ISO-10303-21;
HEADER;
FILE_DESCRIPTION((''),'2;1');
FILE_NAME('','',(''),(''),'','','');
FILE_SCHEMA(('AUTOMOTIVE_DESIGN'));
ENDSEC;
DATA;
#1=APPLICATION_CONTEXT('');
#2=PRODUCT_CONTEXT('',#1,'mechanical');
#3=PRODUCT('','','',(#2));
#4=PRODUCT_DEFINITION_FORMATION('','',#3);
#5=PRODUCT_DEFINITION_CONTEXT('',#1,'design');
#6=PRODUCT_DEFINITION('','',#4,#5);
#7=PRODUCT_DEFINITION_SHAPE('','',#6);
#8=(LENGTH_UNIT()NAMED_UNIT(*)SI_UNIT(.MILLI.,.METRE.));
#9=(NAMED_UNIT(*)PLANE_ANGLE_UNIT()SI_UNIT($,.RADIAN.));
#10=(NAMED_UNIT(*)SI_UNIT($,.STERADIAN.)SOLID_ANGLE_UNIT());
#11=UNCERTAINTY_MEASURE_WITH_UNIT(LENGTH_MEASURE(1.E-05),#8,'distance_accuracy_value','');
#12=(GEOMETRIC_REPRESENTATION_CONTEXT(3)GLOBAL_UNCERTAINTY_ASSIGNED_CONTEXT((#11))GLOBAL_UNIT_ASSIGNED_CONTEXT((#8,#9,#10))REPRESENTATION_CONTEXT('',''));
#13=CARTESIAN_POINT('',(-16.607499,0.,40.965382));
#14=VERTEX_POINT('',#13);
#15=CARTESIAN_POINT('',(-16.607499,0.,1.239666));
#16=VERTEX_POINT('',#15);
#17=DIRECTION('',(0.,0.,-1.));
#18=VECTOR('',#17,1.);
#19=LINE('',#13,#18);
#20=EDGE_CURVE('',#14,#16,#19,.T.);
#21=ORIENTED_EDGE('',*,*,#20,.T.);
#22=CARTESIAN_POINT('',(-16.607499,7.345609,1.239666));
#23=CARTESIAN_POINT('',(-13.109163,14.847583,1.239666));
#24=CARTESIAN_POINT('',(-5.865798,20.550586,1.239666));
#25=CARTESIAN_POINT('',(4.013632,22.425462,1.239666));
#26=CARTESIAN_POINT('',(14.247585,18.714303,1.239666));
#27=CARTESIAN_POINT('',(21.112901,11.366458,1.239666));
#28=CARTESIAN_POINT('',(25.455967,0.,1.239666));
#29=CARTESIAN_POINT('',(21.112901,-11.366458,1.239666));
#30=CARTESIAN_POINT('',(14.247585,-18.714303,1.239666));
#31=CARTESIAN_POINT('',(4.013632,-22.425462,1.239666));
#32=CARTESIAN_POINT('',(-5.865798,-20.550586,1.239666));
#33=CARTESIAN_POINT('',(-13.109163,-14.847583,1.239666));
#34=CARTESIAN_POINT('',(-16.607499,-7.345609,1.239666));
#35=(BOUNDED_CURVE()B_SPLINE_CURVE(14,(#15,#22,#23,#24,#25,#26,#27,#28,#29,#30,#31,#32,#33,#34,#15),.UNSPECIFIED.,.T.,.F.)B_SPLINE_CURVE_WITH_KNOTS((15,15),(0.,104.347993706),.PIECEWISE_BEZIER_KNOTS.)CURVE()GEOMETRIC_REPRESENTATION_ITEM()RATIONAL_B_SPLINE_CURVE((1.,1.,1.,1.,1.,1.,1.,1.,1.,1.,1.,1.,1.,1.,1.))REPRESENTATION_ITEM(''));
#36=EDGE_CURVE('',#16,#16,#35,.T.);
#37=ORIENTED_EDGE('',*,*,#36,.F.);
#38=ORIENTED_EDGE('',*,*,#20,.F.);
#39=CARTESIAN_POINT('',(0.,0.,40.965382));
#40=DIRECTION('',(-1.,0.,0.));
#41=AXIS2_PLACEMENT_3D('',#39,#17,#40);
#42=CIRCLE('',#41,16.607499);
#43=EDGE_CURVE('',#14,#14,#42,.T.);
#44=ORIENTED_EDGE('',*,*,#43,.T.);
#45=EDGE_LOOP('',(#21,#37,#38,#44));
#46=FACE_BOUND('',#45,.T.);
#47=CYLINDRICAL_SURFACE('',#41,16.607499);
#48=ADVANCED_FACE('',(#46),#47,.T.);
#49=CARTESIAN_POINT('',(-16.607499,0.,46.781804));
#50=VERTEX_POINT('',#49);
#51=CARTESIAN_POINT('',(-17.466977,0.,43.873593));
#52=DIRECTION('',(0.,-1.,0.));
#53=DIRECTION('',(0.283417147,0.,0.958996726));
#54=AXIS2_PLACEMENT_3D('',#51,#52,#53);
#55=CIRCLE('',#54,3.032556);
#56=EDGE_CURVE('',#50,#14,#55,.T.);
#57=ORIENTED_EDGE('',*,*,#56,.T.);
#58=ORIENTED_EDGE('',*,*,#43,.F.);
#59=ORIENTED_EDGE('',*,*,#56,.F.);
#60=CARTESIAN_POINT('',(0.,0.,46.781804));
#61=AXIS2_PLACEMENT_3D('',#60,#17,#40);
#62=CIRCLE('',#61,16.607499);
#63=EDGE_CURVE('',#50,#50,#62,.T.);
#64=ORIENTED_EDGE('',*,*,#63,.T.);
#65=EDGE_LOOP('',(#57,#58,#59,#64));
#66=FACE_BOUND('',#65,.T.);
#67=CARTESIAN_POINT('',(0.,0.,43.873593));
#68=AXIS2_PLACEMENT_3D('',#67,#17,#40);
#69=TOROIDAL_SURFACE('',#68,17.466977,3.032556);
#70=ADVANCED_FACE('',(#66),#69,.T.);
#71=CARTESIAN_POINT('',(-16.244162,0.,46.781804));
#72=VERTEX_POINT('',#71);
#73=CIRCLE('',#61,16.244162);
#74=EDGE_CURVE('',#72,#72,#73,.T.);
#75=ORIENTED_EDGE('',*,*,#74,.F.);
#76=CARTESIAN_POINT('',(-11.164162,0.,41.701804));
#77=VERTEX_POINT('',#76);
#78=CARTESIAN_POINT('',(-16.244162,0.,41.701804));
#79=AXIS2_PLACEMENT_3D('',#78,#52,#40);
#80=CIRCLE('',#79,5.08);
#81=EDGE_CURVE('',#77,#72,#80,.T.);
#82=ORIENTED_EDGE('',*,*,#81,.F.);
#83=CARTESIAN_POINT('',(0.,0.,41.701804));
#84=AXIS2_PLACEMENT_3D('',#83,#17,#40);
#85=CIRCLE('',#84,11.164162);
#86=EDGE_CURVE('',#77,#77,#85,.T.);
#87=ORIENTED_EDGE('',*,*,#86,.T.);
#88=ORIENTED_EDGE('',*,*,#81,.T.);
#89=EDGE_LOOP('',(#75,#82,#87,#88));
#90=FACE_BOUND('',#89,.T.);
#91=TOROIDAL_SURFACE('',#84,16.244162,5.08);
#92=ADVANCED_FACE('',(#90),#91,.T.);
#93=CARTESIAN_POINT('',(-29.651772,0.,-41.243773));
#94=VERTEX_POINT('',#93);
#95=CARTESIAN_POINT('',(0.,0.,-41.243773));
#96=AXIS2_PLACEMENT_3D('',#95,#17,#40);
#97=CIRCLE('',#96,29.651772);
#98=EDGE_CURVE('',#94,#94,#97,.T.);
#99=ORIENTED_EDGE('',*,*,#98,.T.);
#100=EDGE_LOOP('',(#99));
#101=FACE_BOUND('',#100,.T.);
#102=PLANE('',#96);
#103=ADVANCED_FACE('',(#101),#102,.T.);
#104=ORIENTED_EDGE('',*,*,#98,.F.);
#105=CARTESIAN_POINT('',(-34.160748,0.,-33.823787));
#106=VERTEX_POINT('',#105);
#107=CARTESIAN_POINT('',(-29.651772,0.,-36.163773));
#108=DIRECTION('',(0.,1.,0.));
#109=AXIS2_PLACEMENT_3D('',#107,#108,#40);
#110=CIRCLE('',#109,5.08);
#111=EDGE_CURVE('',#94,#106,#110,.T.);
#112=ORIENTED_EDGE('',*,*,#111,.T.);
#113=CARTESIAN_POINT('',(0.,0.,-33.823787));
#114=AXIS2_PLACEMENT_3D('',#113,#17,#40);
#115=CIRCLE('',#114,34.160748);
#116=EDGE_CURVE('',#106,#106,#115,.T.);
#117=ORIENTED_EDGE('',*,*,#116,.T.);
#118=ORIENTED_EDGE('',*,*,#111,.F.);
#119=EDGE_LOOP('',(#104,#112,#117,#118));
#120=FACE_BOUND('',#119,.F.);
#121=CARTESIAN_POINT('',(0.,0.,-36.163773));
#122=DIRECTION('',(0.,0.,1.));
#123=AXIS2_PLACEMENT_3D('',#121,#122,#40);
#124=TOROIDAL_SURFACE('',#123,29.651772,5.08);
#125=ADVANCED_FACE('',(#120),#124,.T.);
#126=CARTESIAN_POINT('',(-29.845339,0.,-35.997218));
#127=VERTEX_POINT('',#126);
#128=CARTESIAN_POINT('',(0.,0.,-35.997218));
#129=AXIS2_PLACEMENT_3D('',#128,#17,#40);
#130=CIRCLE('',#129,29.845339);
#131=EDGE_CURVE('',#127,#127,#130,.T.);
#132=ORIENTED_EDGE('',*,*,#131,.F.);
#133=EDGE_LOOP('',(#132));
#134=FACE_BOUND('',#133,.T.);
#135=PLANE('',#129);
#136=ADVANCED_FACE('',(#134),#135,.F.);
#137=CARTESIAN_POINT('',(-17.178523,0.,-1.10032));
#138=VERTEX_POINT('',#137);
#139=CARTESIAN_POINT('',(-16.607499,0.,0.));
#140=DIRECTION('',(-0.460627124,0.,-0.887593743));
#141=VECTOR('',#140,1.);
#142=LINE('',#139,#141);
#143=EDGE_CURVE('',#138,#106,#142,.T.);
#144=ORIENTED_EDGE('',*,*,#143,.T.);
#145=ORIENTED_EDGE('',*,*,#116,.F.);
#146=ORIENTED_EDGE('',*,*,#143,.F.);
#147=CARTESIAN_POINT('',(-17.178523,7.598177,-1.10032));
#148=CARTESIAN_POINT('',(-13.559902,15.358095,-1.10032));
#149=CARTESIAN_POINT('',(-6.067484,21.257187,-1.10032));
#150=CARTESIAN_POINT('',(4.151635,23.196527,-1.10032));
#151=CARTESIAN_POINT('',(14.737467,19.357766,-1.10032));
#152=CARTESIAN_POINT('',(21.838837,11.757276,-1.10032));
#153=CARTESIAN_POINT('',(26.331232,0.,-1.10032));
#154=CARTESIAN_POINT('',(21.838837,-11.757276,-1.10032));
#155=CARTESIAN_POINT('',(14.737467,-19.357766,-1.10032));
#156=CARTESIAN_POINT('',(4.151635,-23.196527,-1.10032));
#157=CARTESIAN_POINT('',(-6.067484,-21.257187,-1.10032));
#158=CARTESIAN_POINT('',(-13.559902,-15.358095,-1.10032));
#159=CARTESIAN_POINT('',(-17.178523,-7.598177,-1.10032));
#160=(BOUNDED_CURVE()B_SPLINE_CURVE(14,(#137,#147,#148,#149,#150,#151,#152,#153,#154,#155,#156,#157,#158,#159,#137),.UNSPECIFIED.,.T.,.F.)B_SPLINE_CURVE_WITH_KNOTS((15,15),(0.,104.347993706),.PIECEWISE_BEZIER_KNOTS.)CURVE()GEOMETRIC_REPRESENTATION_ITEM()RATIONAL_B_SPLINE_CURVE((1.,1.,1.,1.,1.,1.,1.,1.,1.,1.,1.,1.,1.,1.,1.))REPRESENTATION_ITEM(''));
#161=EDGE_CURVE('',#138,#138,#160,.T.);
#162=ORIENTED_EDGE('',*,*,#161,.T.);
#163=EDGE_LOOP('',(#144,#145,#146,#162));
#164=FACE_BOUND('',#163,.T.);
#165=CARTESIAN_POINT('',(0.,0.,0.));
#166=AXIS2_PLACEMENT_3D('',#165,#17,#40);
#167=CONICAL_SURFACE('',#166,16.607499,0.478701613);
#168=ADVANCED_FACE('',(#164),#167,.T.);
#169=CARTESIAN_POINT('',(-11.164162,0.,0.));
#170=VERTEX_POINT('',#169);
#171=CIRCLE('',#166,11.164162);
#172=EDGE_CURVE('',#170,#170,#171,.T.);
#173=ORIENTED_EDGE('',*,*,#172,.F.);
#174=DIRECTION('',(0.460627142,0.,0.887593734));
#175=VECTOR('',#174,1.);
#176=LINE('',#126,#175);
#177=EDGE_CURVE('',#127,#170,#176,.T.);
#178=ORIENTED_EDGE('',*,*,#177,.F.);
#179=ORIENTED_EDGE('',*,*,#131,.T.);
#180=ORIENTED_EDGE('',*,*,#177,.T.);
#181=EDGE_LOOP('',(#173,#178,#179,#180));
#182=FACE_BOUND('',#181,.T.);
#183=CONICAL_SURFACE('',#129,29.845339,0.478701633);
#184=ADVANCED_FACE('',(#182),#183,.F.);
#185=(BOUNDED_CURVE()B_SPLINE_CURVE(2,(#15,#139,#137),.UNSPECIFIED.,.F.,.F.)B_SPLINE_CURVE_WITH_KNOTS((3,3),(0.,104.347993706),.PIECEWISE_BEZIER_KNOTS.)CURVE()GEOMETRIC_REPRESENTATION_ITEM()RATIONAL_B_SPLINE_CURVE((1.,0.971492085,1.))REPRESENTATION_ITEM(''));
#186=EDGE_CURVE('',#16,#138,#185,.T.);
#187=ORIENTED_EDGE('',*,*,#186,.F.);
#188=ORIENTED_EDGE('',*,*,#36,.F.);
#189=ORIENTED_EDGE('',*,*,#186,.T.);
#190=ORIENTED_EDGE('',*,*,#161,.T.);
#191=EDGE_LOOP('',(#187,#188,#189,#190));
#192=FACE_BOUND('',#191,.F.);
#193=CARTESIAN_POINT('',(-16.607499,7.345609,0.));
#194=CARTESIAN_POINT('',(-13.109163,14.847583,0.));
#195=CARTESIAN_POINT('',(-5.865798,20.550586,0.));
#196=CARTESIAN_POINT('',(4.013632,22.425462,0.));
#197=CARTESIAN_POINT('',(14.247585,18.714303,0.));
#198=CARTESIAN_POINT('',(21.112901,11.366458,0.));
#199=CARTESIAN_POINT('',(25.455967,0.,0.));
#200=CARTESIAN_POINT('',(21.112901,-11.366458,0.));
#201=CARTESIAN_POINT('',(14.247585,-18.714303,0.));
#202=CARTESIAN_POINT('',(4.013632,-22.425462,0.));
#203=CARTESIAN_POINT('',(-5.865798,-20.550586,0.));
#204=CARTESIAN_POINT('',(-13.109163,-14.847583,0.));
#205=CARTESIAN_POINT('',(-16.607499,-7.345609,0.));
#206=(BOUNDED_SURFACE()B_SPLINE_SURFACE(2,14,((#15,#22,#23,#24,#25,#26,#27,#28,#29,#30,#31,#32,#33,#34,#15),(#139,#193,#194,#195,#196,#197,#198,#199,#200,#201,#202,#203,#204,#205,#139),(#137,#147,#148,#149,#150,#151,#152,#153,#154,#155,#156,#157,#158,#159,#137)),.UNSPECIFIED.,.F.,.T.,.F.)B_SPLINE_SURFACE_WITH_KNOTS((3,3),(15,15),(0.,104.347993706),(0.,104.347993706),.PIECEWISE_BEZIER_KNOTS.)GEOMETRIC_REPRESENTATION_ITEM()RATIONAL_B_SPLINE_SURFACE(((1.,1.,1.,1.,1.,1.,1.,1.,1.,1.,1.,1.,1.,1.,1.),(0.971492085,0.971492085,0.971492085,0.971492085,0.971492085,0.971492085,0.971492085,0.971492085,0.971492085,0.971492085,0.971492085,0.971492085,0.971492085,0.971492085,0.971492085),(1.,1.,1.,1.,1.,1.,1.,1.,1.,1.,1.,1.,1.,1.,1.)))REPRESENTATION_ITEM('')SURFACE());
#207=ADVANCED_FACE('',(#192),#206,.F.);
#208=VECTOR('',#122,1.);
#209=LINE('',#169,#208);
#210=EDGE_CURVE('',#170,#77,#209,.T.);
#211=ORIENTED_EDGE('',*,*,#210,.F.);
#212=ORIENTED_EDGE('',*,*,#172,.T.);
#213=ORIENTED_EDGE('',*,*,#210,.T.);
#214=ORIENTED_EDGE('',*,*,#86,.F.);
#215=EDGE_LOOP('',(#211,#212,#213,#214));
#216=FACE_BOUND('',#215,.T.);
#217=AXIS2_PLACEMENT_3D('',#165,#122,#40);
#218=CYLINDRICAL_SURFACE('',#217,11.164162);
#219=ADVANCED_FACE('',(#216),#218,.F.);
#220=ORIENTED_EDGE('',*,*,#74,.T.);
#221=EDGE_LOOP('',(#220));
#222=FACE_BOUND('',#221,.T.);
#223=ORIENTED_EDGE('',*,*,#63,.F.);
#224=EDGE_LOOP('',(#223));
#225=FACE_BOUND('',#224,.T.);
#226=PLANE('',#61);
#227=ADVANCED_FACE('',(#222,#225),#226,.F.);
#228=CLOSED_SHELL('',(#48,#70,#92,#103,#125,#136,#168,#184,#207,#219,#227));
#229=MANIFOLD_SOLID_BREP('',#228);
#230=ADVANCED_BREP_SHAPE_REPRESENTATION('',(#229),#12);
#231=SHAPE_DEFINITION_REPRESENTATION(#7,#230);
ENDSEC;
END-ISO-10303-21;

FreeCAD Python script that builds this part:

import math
import FreeCAD as App
import Part
import Sketcher
Q = App.Units.Quantity


def edges_at(feature, points):
    """Names of the edges that pass closest to the given points."""
    edges = feature.Shape.Edges
    near = lambda p: min(range(len(edges)), key=lambda i: edges[i].distToShape(Part.Vertex(*p))[0])
    return sorted({f"Edge{near(p) + 1}" for p in points})

doc = App.newDocument("Part")
body = doc.addObject("PartDesign::Body", "Body")

# Sketch on XZ plane
sketch1 = body.newObject("Sketcher::SketchObject", "Sketch")
sketch1.AttachmentSupport = (doc.getObject("XZ_Plane"), [""])
sketch1.MapMode = "FlatFace"
sketch1.addGeometry([
    Part.LineSegment(App.Vector(-38, -41.2, 0), App.Vector(0, -41.2, 0)),  # 0
    Part.LineSegment(App.Vector(0, -41.2, 0), App.Vector(0, -36, 0)),  # 1
    Part.LineSegment(App.Vector(0, -36, 0), App.Vector(-29.8, -36, 0)),  # 2
    Part.LineSegment(App.Vector(-29.8, -36, 0), App.Vector(-11.2, 0, 0)),  # 3
    Part.LineSegment(App.Vector(-11.2, 0, 0), App.Vector(-11.2, 46.8, 0)),  # 4
    Part.LineSegment(App.Vector(-11.2, 46.8, 0), App.Vector(-16.6, 46.8, 0)),  # 5
    Part.ArcOfCircle(Part.Circle(App.Vector(-17.5, 43.9, 0), App.Vector(0, 0, 1), 3), math.radians(74), math.radians(286)),  # 6
    Part.LineSegment(App.Vector(-16.6, 41, 0), App.Vector(-16.6, 0, 0)),  # 7
    Part.LineSegment(App.Vector(-16.6, 0, 0), App.Vector(-38, -41.2, 0)),  # 8
], False)
sketch1.addConstraint([
    Sketcher.Constraint("Coincident", 0, 2, 1, 1),
    Sketcher.Constraint("Coincident", 1, 2, 2, 1),
    Sketcher.Constraint("Coincident", 2, 2, 3, 1),
    Sketcher.Constraint("Coincident", 3, 2, 4, 1),
    Sketcher.Constraint("Coincident", 4, 2, 5, 1),
    Sketcher.Constraint("Coincident", 5, 2, 6, 1),
    Sketcher.Constraint("Coincident", 6, 2, 7, 1),
    Sketcher.Constraint("Coincident", 7, 2, 8, 1),
    Sketcher.Constraint("Coincident", 8, 2, 0, 1),
    Sketcher.Constraint("Horizontal", 0),
    Sketcher.Constraint("Vertical", 1),
    Sketcher.Constraint("Horizontal", 2),
    Sketcher.Constraint("Vertical", 4),
    Sketcher.Constraint("Horizontal", 5),
    Sketcher.Constraint("Vertical", 7),
    Sketcher.Constraint("PointOnObject", 0, 2, -2),
    Sketcher.Constraint("PointOnObject", 3, 2, -1),
    Sketcher.Constraint("PointOnObject", 7, 2, -1),
    Sketcher.Constraint("Parallel", 3, 8),
    Sketcher.Constraint("Vertical", 5, 2, 6, 2),
    Sketcher.Constraint("Radius", 6, Q("3.032556 mm")),
    Sketcher.Constraint("DistanceX", 8, 2, 2, 2, Q("0.3214999 in")),
    Sketcher.Constraint("DistanceX", 2, 2, 2, 1, Q("29.845339 mm")),
    Sketcher.Constraint("DistanceY", 7, 2, 7, 1, Q("40.965382 mm")),
    Sketcher.Constraint("DistanceX", 5, 2, -1, 1, Q("16.607499 mm")),
    Sketcher.Constraint("DistanceY", 2, 2, 6, 2, Q("76.9626 mm")),
    Sketcher.Constraint("Distance", 8, Q("46.466949 mm")),
    Sketcher.Constraint("DistanceY", 4, 1, 4, 2, Q("46.781804 mm")),
])
revolution = body.newObject("PartDesign::Revolution", "Revolution")
revolution.Profile = sketch1
revolution.ReferenceAxis = (sketch1, ["V_Axis"])
revolution.Angle = 360
doc.recompute()

fillet = body.newObject("PartDesign::Fillet", "Fillet")
fillet.Base = (revolution, edges_at(revolution, [
    (16.607, 0, 0),
    (38.011, 0, -41.244),
    (-27.309, 0, -20.622),
    (11.164, 0, 46.782),
]))
fillet.Radius = Q("0.2 in")

doc.recompute()
